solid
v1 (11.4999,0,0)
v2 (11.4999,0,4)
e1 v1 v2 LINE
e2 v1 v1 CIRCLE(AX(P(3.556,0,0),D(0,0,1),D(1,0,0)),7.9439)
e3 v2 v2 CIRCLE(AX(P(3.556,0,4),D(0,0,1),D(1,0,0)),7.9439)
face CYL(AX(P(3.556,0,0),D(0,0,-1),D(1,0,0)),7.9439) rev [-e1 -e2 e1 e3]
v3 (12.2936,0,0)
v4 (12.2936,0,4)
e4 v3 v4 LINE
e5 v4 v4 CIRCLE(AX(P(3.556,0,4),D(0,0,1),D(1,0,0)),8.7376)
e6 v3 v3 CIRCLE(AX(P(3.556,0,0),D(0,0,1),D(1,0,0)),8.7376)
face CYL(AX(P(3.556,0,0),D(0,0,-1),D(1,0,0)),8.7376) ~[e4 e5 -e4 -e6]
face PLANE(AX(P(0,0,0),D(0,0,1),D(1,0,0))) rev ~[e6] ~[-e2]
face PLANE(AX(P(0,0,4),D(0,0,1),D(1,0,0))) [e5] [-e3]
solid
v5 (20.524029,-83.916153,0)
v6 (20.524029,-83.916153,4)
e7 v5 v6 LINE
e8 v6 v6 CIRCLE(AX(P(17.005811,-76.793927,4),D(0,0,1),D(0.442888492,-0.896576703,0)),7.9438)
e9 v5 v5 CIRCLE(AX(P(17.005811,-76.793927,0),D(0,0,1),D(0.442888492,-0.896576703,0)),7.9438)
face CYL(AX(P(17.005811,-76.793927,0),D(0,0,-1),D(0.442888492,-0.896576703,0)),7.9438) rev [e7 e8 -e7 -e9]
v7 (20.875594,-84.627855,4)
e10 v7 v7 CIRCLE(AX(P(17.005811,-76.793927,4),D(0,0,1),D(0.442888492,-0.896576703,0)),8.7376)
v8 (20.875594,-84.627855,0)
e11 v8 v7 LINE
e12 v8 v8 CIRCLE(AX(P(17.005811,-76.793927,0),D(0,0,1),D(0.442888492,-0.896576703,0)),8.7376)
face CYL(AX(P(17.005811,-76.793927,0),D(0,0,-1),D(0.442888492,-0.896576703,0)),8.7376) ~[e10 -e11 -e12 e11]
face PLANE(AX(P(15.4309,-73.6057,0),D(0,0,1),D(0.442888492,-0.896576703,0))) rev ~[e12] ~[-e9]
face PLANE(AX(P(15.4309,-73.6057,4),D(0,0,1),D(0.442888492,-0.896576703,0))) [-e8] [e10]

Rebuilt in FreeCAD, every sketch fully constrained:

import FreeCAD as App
import Part
import Sketcher

doc = App.newDocument("Part")
params = doc.addObject("Spreadsheet::Sheet", "Params")
for row, (alias, value) in enumerate([
    ("pad1_length", "4 mm"),
    ("pad2_length", "4 mm"),
], start=1):
    params.set(f"A{row}", alias)
    params.set(f"B{row}", "=" + value)
    params.setAlias(f"B{row}", alias)

body = doc.addObject("PartDesign::Body", "Body")
body.AllowCompound = True

sketch1 = body.newObject("Sketcher::SketchObject", "Sketch")
sketch1.AttachmentSupport = (doc.getObject("XY_Plane"), [""])
sketch1.MapMode = "FlatFace"
sketch1.addGeometry([
    Part.Circle(App.Vector(4, 0, 0), App.Vector(0, 0, 1), 9),
    Part.Circle(App.Vector(4, 0, 0), App.Vector(0, 0, 1), 8),
], False)
sketch1.addConstraint([
    Sketcher.Constraint("Coincident", 1, 3, 0, 3),
    Sketcher.Constraint("PointOnObject", 0, 3, -1),
    Sketcher.Constraint("Diameter", 0, 17.4752),
    Sketcher.Constraint("Diameter", 1, 15.8878),
    Sketcher.Constraint("DistanceX", -1, 1, 0, 3, 3.556),
])
pad1 = body.newObject("PartDesign::Pad", "Pad")
pad1.Profile = sketch1
pad1.setExpression("Length", "Params.pad1_length")

sketch2 = body.newObject("Sketcher::SketchObject", "Sketch001")
sketch2.AttachmentSupport = (doc.getObject("XY_Plane"), [""])
sketch2.MapMode = "FlatFace"
sketch2.addGeometry([
    Part.Circle(App.Vector(17, -77, 0), App.Vector(0, 0, 1), 9),
    Part.Circle(App.Vector(17, -77, 0), App.Vector(0, 0, 1), 8),
], False)
sketch2.addConstraint([
    Sketcher.Constraint("Coincident", 1, 3, 0, 3),
    Sketcher.Constraint("Diameter", 0, 17.4752),
    Sketcher.Constraint("Diameter", 1, 15.8876),
    Sketcher.Constraint("DistanceY", 0, 3, -1, 1, 76.794),
    Sketcher.Constraint("DistanceX", -1, 1, 0, 3, 17.0058),
])
pad2 = body.newObject("PartDesign::Pad", "Pad001")
pad2.Profile = sketch2
pad2.setExpression("Length", "Params.pad2_length")

doc.recompute()
